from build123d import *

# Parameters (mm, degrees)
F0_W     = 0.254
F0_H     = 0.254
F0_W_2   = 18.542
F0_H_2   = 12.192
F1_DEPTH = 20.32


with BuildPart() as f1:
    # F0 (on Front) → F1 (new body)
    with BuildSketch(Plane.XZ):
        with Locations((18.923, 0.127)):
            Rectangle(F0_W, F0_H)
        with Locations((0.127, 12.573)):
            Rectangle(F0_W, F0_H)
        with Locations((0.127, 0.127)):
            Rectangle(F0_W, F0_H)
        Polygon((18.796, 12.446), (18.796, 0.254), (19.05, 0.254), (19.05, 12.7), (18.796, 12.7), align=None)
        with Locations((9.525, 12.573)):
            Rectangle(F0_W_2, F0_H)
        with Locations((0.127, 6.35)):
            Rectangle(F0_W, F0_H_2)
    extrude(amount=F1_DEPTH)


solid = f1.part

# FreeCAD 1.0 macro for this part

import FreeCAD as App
import Part
import Sketcher

V = App.Vector
Q = App.Units.Quantity

doc = App.newDocument("Part")
body = doc.addObject("PartDesign::Body", "Body")

sketch1 = doc.addObject("Sketcher::SketchObject", "Sketch")
body.addObject(sketch1)
sketch1.AttachmentSupport = (doc.XZ_Plane, [""])
sketch1.MapMode = "FlatFace"
sketch1.addGeometry([
    Part.LineSegment(V(18.8, 0, 0), V(19.05, 0, 0)),
    Part.LineSegment(V(19.05, 0, 0), V(19.05, 12.7, 0)),
    Part.LineSegment(V(19.05, 12.7, 0), V(0, 12.7, 0)),
    Part.LineSegment(V(0, 12.7, 0), V(0, 0, 0)),
    Part.LineSegment(V(0, 0, 0), V(0.25, 0, 0)),
    Part.LineSegment(V(0.25, 0, 0), V(0.25, 12.45, 0)),
    Part.LineSegment(V(0.25, 12.45, 0), V(18.8, 12.45, 0)),
    Part.LineSegment(V(18.8, 12.45, 0), V(18.8, 0, 0)),
], False)
sketch1.addConstraint([
    Sketcher.Constraint("Coincident", 0, 2, 1, 1),
    Sketcher.Constraint("Coincident", 1, 2, 2, 1),
    Sketcher.Constraint("Coincident", 2, 2, 3, 1),
    Sketcher.Constraint("Coincident", 3, 2, 4, 1),
    Sketcher.Constraint("Coincident", 4, 2, 5, 1),
    Sketcher.Constraint("Coincident", 5, 2, 6, 1),
    Sketcher.Constraint("Coincident", 6, 2, 7, 1),
    Sketcher.Constraint("Coincident", 7, 2, 0, 1),
    Sketcher.Constraint("Horizontal", 0),
    Sketcher.Constraint("Vertical", 1),
    Sketcher.Constraint("Horizontal", 2),
    Sketcher.Constraint("Vertical", 3),
    Sketcher.Constraint("Horizontal", 4),
    Sketcher.Constraint("Vertical", 5),
    Sketcher.Constraint("Horizontal", 6),
    Sketcher.Constraint("Vertical", 7),
    Sketcher.Constraint("Coincident", 3, 2, -1, 1),
    Sketcher.Constraint("PointOnObject", 0, 2, -1),
    Sketcher.Constraint("Equal", 0, 4),
    Sketcher.Constraint("DistanceY", 1, 1, 1, 2, Q("0.5 in")),
    Sketcher.Constraint("DistanceX", 0, 1, 0, 2, Q("0.01 in")),
    Sketcher.Constraint("DistanceX", 2, 2, 2, 1, Q("0.75 in")),
    Sketcher.Constraint("DistanceY", 5, 1, 5, 2, Q("0.49 in")),
])
pad1 = doc.addObject("PartDesign::Pad", "Pad")
body.addObject(pad1)
pad1.Profile = sketch1
pad1.Length = Q("0.8 in")

doc.recompute()
